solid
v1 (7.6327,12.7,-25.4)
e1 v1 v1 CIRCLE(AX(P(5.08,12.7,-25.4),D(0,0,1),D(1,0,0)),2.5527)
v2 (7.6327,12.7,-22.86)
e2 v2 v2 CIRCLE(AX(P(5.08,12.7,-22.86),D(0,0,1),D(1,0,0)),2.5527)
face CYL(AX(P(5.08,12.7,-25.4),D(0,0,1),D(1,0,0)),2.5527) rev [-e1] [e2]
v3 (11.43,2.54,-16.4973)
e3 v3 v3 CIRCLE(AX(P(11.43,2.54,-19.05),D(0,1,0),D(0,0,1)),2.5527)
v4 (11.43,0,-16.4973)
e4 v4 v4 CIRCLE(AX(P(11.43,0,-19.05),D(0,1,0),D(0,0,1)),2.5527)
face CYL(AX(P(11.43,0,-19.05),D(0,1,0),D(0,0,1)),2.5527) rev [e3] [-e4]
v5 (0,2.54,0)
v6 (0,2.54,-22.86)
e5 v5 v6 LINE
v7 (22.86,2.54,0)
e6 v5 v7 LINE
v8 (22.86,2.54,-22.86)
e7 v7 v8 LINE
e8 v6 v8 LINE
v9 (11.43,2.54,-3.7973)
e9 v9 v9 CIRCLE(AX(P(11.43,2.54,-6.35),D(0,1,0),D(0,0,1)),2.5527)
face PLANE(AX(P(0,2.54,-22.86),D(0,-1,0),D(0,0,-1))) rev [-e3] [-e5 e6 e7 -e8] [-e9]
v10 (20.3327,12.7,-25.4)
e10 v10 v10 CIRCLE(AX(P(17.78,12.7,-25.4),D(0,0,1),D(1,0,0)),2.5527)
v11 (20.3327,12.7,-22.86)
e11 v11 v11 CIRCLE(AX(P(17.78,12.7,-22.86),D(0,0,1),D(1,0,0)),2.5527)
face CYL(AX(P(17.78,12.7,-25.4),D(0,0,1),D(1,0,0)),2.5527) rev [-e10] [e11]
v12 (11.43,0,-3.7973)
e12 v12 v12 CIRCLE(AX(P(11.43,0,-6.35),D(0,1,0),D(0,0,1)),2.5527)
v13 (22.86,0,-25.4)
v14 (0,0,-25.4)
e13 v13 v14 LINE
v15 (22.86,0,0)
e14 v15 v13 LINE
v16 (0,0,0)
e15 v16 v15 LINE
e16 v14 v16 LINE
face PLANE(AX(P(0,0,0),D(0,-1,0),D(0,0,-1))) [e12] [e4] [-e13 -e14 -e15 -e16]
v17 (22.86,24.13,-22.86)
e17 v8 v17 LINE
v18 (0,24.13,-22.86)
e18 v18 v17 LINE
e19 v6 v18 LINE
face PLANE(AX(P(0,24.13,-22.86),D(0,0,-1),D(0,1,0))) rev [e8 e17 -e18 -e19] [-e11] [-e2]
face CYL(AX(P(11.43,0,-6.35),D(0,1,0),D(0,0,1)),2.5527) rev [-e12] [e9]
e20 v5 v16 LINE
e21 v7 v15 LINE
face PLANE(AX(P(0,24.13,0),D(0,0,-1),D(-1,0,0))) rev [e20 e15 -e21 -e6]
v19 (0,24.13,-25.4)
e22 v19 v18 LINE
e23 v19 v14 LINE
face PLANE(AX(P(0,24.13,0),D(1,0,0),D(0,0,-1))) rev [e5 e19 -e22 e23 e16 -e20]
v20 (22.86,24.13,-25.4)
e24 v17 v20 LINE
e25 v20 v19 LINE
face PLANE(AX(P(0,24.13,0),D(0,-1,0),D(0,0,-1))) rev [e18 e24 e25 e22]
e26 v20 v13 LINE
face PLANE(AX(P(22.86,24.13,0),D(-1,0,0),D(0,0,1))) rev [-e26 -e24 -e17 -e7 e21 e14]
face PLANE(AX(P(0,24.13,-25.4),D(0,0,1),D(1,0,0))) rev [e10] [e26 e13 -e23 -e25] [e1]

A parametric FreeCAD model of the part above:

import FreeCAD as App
import Part
import Sketcher
Q = App.Units.Quantity

doc = App.newDocument("Part")
body = doc.addObject("PartDesign::Body", "Body")

# Sketch on XZ plane
sketch1 = body.newObject("Sketcher::SketchObject", "Sketch")
sketch1.AttachmentSupport = (doc.getObject("XZ_Plane"), [""])
sketch1.MapMode = "FlatFace"
sketch1.addGeometry(Part.LineSegment(App.Vector(0, -25, 0), App.Vector(0, 0, 0)), False)
sketch1.addGeometry(Part.LineSegment(App.Vector(0, 0, 0), App.Vector(23, 0, 0)), False)
sketch1.addGeometry(Part.LineSegment(App.Vector(23, 0, 0), App.Vector(23, -25, 0)), False)
sketch1.addGeometry(Part.LineSegment(App.Vector(23, -25, 0), App.Vector(0, -25, 0)), False)
sketch1.addConstraint(Sketcher.Constraint("Coincident", 0, 2, 1, 1))
sketch1.addConstraint(Sketcher.Constraint("Coincident", 1, 2, 2, 1))
sketch1.addConstraint(Sketcher.Constraint("Coincident", 2, 2, 3, 1))
sketch1.addConstraint(Sketcher.Constraint("Coincident", 3, 2, 0, 1))
sketch1.addConstraint(Sketcher.Constraint("Vertical", 0))
sketch1.addConstraint(Sketcher.Constraint("Horizontal", 1))
sketch1.addConstraint(Sketcher.Constraint("Vertical", 2))
sketch1.addConstraint(Sketcher.Constraint("Horizontal", 3))
sketch1.addConstraint(Sketcher.Constraint("Coincident", 0, 2, -1, 1))
sketch1.addConstraint(Sketcher.Constraint("DistanceY", 0, 1, 0, 2, Q("1 in")))
sketch1.addConstraint(Sketcher.Constraint("DistanceX", 1, 1, 1, 2, Q("0.9 in")))
pad1 = body.newObject("PartDesign::Pad", "Pad")
pad1.Profile = sketch1
pad1.Length = Q("0.95 in")
pad1.Reversed = True

# Sketch on YZ plane
sketch2 = body.newObject("Sketcher::SketchObject", "Sketch001")
sketch2.AttachmentSupport = (doc.getObject("YZ_Plane"), [""])
sketch2.MapMode = "FlatFace"
sketch2.AttachmentOffset = App.Placement(App.Vector(0, 0, 0.9 * 25.4), App.Rotation())
sketch2.addGeometry(Part.LineSegment(App.Vector(24, 0, 0), App.Vector(3, 0, 0)), False)
sketch2.addGeometry(Part.LineSegment(App.Vector(3, 0, 0), App.Vector(3, -23, 0)), False)
sketch2.addGeometry(Part.LineSegment(App.Vector(3, -23, 0), App.Vector(24, -23, 0)), False)
sketch2.addGeometry(Part.LineSegment(App.Vector(24, -23, 0), App.Vector(24, 0, 0)), False)
sketch2.addConstraint(Sketcher.Constraint("Coincident", 0, 2, 1, 1))
sketch2.addConstraint(Sketcher.Constraint("Coincident", 1, 2, 2, 1))
sketch2.addConstraint(Sketcher.Constraint("Coincident", 2, 2, 3, 1))
sketch2.addConstraint(Sketcher.Constraint("Coincident", 3, 2, 0, 1))
sketch2.addConstraint(Sketcher.Constraint("Horizontal", 0))
sketch2.addConstraint(Sketcher.Constraint("Vertical", 1))
sketch2.addConstraint(Sketcher.Constraint("Horizontal", 2))
sketch2.addConstraint(Sketcher.Constraint("Vertical", 3))
sketch2.addConstraint(Sketcher.Constraint("PointOnObject", 0, 2, -1))
sketch2.addConstraint(Sketcher.Constraint("DistanceY", 1, 2, 1, 1, Q("0.9 in")))
sketch2.addConstraint(Sketcher.Constraint("DistanceX", 0, 2, 0, 1, Q("0.85 in")))
sketch2.addConstraint(Sketcher.Constraint("DistanceX", -1, 1, 0, 2, Q("0.1 in")))
pocket1 = body.newObject("PartDesign::Pocket", "Pocket")
pocket1.Profile = sketch2
pocket1.Type = "ThroughAll"

# Sketch on XZ plane
sketch3 = body.newObject("Sketcher::SketchObject", "Sketch002")
sketch3.AttachmentSupport = (doc.getObject("XZ_Plane"), [""])
sketch3.MapMode = "FlatFace"
sketch3.AttachmentOffset = App.Placement(App.Vector(0, 0, -0.1 * 25.4), App.Rotation())
sketch3.addGeometry(Part.Circle(App.Vector(11.4, -6.3, 0), App.Vector(0, 0, 1), 2.6), False)
sketch3.addGeometry(Part.Circle(App.Vector(11.4, -19.1, 0), App.Vector(0, 0, 1), 2.6), False)
sketch3.addConstraint(Sketcher.Constraint("Equal", 0, 1))
sketch3.addConstraint(Sketcher.Constraint("Vertical", 0, 3, 1, 3))
sketch3.addConstraint(Sketcher.Constraint("Diameter", 0, Q("0.201 in")))
sketch3.addConstraint(Sketcher.Constraint("DistanceY", 1, 3, 0, 3, Q("0.5 in")))
sketch3.addConstraint(Sketcher.Constraint("DistanceX", -1, 1, 0, 3, Q("0.45 in")))
sketch3.addConstraint(Sketcher.Constraint("DistanceY", 0, 3, -1, 1, Q("0.25 in")))
pocket2 = body.newObject("PartDesign::Pocket", "Pocket001")
pocket2.Profile = sketch3
pocket2.Type = "ThroughAll"
pocket2.Reversed = True

# Sketch on XY plane
sketch4 = body.newObject("Sketcher::SketchObject", "Sketch003")
sketch4.AttachmentSupport = (doc.getObject("XY_Plane"), [""])
sketch4.MapMode = "FlatFace"
sketch4.AttachmentOffset = App.Placement(App.Vector(0, 0, -0.9 * 25.4), App.Rotation())
sketch4.addGeometry(Part.Circle(App.Vector(17.8, 12.7, 0), App.Vector(0, 0, 1), 2.6), False)
sketch4.addGeometry(Part.Circle(App.Vector(5.1, 12.7, 0), App.Vector(0, 0, 1), 2.6), False)
sketch4.addConstraint(Sketcher.Constraint("Equal", 0, 1))
sketch4.addConstraint(Sketcher.Constraint("Horizontal", 0, 3, 1, 3))
sketch4.addConstraint(Sketcher.Constraint("Diameter", 0, Q("0.201 in")))
sketch4.addConstraint(Sketcher.Constraint("DistanceX", -1, 1, 0, 3, Q("0.7 in")))
sketch4.addConstraint(Sketcher.Constraint("DistanceY", -1, 1, 0, 3, Q("0.5 in")))
sketch4.addConstraint(Sketcher.Constraint("DistanceX", -1, 1, 1, 3, Q("0.2 in")))
pocket3 = body.newObject("PartDesign::Pocket", "Pocket002")
pocket3.Profile = sketch4
pocket3.Type = "ThroughAll"

doc.recompute()
